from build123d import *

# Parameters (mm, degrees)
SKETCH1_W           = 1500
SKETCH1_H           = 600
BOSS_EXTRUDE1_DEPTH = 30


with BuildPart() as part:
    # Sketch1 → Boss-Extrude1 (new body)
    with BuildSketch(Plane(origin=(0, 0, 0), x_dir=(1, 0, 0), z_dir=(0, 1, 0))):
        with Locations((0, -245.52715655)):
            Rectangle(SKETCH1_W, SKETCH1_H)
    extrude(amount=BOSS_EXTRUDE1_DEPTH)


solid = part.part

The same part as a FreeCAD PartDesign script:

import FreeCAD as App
import Part
import Sketcher

doc = App.newDocument("Part")
body = doc.addObject("PartDesign::Body", "Body")

# Sketch on XZ plane
sketch1 = body.newObject("Sketcher::SketchObject", "Sketch")
sketch1.AttachmentSupport = (doc.getObject("XZ_Plane"), [""])
sketch1.MapMode = "FlatFace"
sketch1.addGeometry(Part.LineSegment(App.Vector(-750, -54, 0), App.Vector(-750, 546, 0)), False)
sketch1.addGeometry(Part.LineSegment(App.Vector(-750, 546, 0), App.Vector(750, 546, 0)), False)
sketch1.addGeometry(Part.LineSegment(App.Vector(750, 546, 0), App.Vector(750, -54, 0)), False)
sketch1.addGeometry(Part.LineSegment(App.Vector(750, -54, 0), App.Vector(-750, -54, 0)), False)
sketch1.addConstraint(Sketcher.Constraint("Coincident", 0, 2, 1, 1))
sketch1.addConstraint(Sketcher.Constraint("Coincident", 1, 2, 2, 1))
sketch1.addConstraint(Sketcher.Constraint("Coincident", 2, 2, 3, 1))
sketch1.addConstraint(Sketcher.Constraint("Coincident", 3, 2, 0, 1))
sketch1.addConstraint(Sketcher.Constraint("Vertical", 0))
sketch1.addConstraint(Sketcher.Constraint("Horizontal", 1))
sketch1.addConstraint(Sketcher.Constraint("Vertical", 2))
sketch1.addConstraint(Sketcher.Constraint("Horizontal", 3))
sketch1.addConstraint(Sketcher.Constraint("DistanceX", 1, 1, 1, 2, 1500.0))
sketch1.addConstraint(Sketcher.Constraint("DistanceY", 0, 1, 0, 2, 600.0))
sketch1.addConstraint(Sketcher.Constraint("DistanceX", 0, 2, -1, 1, 750.0))
sketch1.addConstraint(Sketcher.Constraint("DistanceY", -1, 1, 0, 2, 545.527157))
pad1 = body.newObject("PartDesign::Pad", "Pad")
pad1.Profile = sketch1
pad1.Length = 30
pad1.Reversed = True

doc.recompute()
